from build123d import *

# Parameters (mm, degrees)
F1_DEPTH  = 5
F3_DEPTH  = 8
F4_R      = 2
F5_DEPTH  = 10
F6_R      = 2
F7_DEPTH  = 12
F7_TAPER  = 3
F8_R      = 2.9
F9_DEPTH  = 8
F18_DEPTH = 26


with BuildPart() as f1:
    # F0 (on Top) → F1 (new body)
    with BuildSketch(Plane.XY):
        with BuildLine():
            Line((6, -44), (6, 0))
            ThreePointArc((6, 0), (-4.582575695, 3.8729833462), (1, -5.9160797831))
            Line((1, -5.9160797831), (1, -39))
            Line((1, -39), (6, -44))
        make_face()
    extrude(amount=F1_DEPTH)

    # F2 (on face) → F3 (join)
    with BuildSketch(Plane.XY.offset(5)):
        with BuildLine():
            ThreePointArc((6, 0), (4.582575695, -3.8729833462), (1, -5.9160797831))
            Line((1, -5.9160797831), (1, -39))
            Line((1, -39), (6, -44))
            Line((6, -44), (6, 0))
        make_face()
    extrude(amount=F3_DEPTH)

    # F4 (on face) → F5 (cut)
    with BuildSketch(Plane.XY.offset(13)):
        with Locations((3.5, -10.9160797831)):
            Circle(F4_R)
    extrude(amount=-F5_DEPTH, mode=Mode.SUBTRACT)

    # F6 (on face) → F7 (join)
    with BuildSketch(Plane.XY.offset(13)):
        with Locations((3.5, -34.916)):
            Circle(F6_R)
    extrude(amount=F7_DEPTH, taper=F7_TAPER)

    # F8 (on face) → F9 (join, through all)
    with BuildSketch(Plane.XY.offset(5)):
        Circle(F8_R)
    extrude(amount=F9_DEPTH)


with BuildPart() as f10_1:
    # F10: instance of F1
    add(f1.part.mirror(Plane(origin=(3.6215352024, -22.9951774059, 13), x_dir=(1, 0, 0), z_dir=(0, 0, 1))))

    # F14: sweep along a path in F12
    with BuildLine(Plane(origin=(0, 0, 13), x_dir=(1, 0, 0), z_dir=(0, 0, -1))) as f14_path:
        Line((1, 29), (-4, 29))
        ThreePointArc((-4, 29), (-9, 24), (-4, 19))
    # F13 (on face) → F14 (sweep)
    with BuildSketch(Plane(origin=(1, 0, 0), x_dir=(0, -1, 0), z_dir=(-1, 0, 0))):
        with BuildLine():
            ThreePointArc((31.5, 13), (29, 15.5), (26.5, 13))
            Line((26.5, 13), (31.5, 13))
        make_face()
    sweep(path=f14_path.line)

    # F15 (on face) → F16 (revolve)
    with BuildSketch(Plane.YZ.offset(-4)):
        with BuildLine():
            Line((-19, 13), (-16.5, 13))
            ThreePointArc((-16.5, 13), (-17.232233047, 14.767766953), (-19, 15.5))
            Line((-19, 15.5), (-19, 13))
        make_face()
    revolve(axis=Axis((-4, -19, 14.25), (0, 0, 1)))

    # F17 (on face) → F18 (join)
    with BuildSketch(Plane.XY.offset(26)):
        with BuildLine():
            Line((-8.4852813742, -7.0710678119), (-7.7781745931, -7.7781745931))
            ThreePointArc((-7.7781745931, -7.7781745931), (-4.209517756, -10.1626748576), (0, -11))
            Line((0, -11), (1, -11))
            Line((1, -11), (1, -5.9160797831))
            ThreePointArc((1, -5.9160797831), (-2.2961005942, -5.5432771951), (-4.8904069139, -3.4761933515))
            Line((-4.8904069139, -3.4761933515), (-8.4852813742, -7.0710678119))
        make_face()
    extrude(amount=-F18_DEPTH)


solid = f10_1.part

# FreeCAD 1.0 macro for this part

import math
import FreeCAD as App
import Part
import Sketcher
from FreeCAD import Vector
Q = App.Units.Quantity

doc = App.newDocument("Part")
body = doc.addObject("PartDesign::Body", "Body")

# Sketch on XY plane
sketch1 = body.newObject("Sketcher::SketchObject", "Sketch")
sketch1.AttachmentSupport = (doc.getObject("XY_Plane"), [""])
sketch1.MapMode = "FlatFace"
sketch1.addGeometry(Part.LineSegment(Vector(6, -44, 0), Vector(6, 0, 0)), False)
sketch1.addGeometry(Part.ArcOfCircle(Part.Circle(Vector(0, 0, 0), Vector(0, 0, 1), 6), math.radians(0), math.radians(280)), False)
sketch1.addGeometry(Part.LineSegment(Vector(1, -6, 0), Vector(1, -39, 0)), False)
sketch1.addGeometry(Part.LineSegment(Vector(1, -39, 0), Vector(6, -44, 0)), False)
sketch1.addConstraint(Sketcher.Constraint("Tangent", 0, 2, 1, 1))
sketch1.addConstraint(Sketcher.Constraint("Coincident", 1, 2, 2, 1))
sketch1.addConstraint(Sketcher.Constraint("Coincident", 2, 2, 3, 1))
sketch1.addConstraint(Sketcher.Constraint("Coincident", 3, 2, 0, 1))
sketch1.addConstraint(Sketcher.Constraint("Vertical", 0))
sketch1.addConstraint(Sketcher.Constraint("Vertical", 2))
sketch1.addConstraint(Sketcher.Constraint("Coincident", 1, 3, -1, 1))
sketch1.addConstraint(Sketcher.Constraint("Radius", 1, 6.0))
sketch1.addConstraint(Sketcher.Constraint("DistanceY", 0, 1, 0, 2, 44.0))
sketch1.addConstraint(Sketcher.Constraint("Angle", 3, Q("-45 deg")))
sketch1.addConstraint(Sketcher.Constraint("DistanceX", -1, 1, 1, 2, 1.0))
pad1 = body.newObject("PartDesign::Pad", "Pad")
pad1.Profile = sketch1
pad1.Length = 5

# Sketch on XY plane
sketch2 = body.newObject("Sketcher::SketchObject", "Sketch001")
sketch2.AttachmentSupport = (doc.getObject("XY_Plane"), [""])
sketch2.MapMode = "FlatFace"
sketch2.AttachmentOffset = App.Placement(Vector(0, 0, 5), App.Rotation())
sketch2.addGeometry(Part.ArcOfCircle(Part.Circle(Vector(0, 0, 0), Vector(0, 0, 1), 6), math.radians(-80), math.radians(0)), False)
sketch2.addGeometry(Part.LineSegment(Vector(1, -6, 0), Vector(1, -39, 0)), False)
sketch2.addGeometry(Part.LineSegment(Vector(1, -39, 0), Vector(6, -44, 0)), False)
sketch2.addGeometry(Part.LineSegment(Vector(6, -44, 0), Vector(6, 0, 0)), False)
sketch2.addConstraint(Sketcher.Constraint("Coincident", 0, 1, 1, 1))
sketch2.addConstraint(Sketcher.Constraint("Coincident", 1, 2, 2, 1))
sketch2.addConstraint(Sketcher.Constraint("Coincident", 2, 2, 3, 1))
sketch2.addConstraint(Sketcher.Constraint("Tangent", 3, 2, 0, 2))
sketch2.addConstraint(Sketcher.Constraint("Vertical", 1))
sketch2.addConstraint(Sketcher.Constraint("Vertical", 3))
sketch2.addConstraint(Sketcher.Constraint("Coincident", 0, 3, -1, 1))
sketch2.addConstraint(Sketcher.Constraint("Radius", 0, 6.0))
sketch2.addConstraint(Sketcher.Constraint("DistanceY", 3, 1, 3, 2, 44.0))
sketch2.addConstraint(Sketcher.Constraint("Angle", 2, Q("-45 deg")))
sketch2.addConstraint(Sketcher.Constraint("DistanceX", -1, 1, 0, 1, 1.0))
pad2 = body.newObject("PartDesign::Pad", "Pad001")
pad2.Profile = sketch2
pad2.Length = 8

# Sketch on XY plane
sketch3 = body.newObject("Sketcher::SketchObject", "Sketch002")
sketch3.AttachmentSupport = (doc.getObject("XY_Plane"), [""])
sketch3.MapMode = "FlatFace"
sketch3.AttachmentOffset = App.Placement(Vector(0, 0, 13), App.Rotation())
sketch3.addGeometry(Part.Circle(Vector(3.5, -10.9, 0), Vector(0, 0, 1), 2), False)
sketch3.addConstraint(Sketcher.Constraint("Diameter", 0, 4.0))
sketch3.addConstraint(Sketcher.Constraint("DistanceX", -1, 1, 0, 3, 3.5))
sketch3.addConstraint(Sketcher.Constraint("DistanceY", 0, 3, -1, 1, 10.91608))
pocket1 = body.newObject("PartDesign::Pocket", "Pocket")
pocket1.Profile = sketch3
pocket1.Length = 10

# Sketch on XY plane
sketch4 = body.newObject("Sketcher::SketchObject", "Sketch003")
sketch4.AttachmentSupport = (doc.getObject("XY_Plane"), [""])
sketch4.MapMode = "FlatFace"
sketch4.AttachmentOffset = App.Placement(Vector(0, 0, 13), App.Rotation())
sketch4.addGeometry(Part.Circle(Vector(3.5, -34.9, 0), Vector(0, 0, 1), 2), False)
sketch4.addConstraint(Sketcher.Constraint("Diameter", 0, 4.0))
sketch4.addConstraint(Sketcher.Constraint("DistanceX", -1, 1, 0, 3, 3.5))
sketch4.addConstraint(Sketcher.Constraint("DistanceY", 0, 3, -1, 1, 34.916))
pad3 = body.newObject("PartDesign::Pad", "Pad002")
pad3.Profile = sketch4
pad3.Length = 12
pad3.TaperAngle = -3

# Sketch on XY plane
sketch5 = body.newObject("Sketcher::SketchObject", "Sketch004")
sketch5.AttachmentSupport = (doc.getObject("XY_Plane"), [""])
sketch5.MapMode = "FlatFace"
sketch5.AttachmentOffset = App.Placement(Vector(0, 0, 5), App.Rotation())
sketch5.addGeometry(Part.Circle(Vector(0, 0, 0), Vector(0, 0, 1), 2.9), False)
sketch5.addConstraint(Sketcher.Constraint("Coincident", 0, 3, -1, 1))
sketch5.addConstraint(Sketcher.Constraint("Diameter", 0, 5.8))
pad4 = body.newObject("PartDesign::Pad", "Pad003")
pad4.Profile = sketch5
pad4.Length = 8
body2 = doc.addObject("PartDesign::Body", "Body001")
doc.recompute()

mirroring = doc.addObject("Part::Mirroring", "Mirroring")
mirroring.Source = body
mirroring.Base = Vector(3.621535, -22.995177, 13)
mirroring.Normal = Vector(0, 0, 1)
body2.BaseFeature = mirroring
doc.recompute()

# Sketch on YZ plane
sketch6 = body2.newObject("Sketcher::SketchObject", "Sketch005")
sketch6.AttachmentSupport = (doc.getObject("YZ_Plane001"), [""])
sketch6.MapMode = "FlatFace"
sketch6.AttachmentOffset = App.Placement(Vector(0, 0, 1), App.Rotation())
sketch6.addGeometry(Part.ArcOfCircle(Part.Circle(Vector(-29, 13, 0), Vector(0, 0, 1), 2.5), math.radians(0), math.radians(180)), False)
sketch6.addGeometry(Part.LineSegment(Vector(-26.5, 13, 0), Vector(-31.5, 13, 0)), False)
sketch6.addConstraint(Sketcher.Constraint("Coincident", 0, 1, 1, 1))
sketch6.addConstraint(Sketcher.Constraint("Coincident", 1, 2, 0, 2))
sketch6.addConstraint(Sketcher.Constraint("Horizontal", 1))
sketch6.addConstraint(Sketcher.Constraint("Radius", 0, 2.5))
sketch6.addConstraint(Sketcher.Constraint("DistanceX", 0, 3, -1, 1, 29.0))
sketch6.addConstraint(Sketcher.Constraint("DistanceY", -1, 1, 0, 3, 13.0))
sketch6.addConstraint(Sketcher.Constraint("DistanceY", -1, 1, 0, 1, 13.0))

# Sketch on XY plane
sketch7 = body2.newObject("Sketcher::SketchObject", "Sketch006")
sketch7.AttachmentSupport = (doc.getObject("XY_Plane001"), [""])
sketch7.MapMode = "FlatFace"
sketch7.AttachmentOffset = App.Placement(Vector(0, 0, 13), App.Rotation())
sketch7.addGeometry(Part.LineSegment(Vector(1, -29, 0), Vector(-4, -29, 0)), False)
sketch7.addGeometry(Part.ArcOfCircle(Part.Circle(Vector(-4, -24, 0), Vector(0, 0, 1), 5), math.radians(90), math.radians(270)), False)
sketch7.addConstraint(Sketcher.Constraint("Tangent", 0, 2, 1, 2))
sketch7.addConstraint(Sketcher.Constraint("Horizontal", 0))
sketch7.addConstraint(Sketcher.Constraint("Vertical", 0, 2, 1, 1))
sketch7.addConstraint(Sketcher.Constraint("Radius", 1, 5.0))
sketch7.addConstraint(Sketcher.Constraint("DistanceX", 0, 2, 0, 1, 5.0))
sketch7.addConstraint(Sketcher.Constraint("DistanceX", 1, 3, -1, 1, 4.0))
sketch7.addConstraint(Sketcher.Constraint("DistanceY", 1, 3, -1, 1, 24.0))
doc.recompute()

additivepipe = body2.newObject("PartDesign::AdditivePipe", "AdditivePipe")
additivepipe.Profile = sketch6
additivepipe.Spine = (sketch7, ["Edge1", "Edge2"])

# Sketch on YZ plane
sketch8 = body2.newObject("Sketcher::SketchObject", "Sketch007")
sketch8.AttachmentSupport = (doc.getObject("YZ_Plane001"), [""])
sketch8.MapMode = "FlatFace"
sketch8.AttachmentOffset = App.Placement(Vector(0, 0, -4), App.Rotation())
sketch8.addGeometry(Part.LineSegment(Vector(-19, 13, 0), Vector(-16.5, 13, 0)), False)
sketch8.addGeometry(Part.ArcOfCircle(Part.Circle(Vector(-19, 13, 0), Vector(0, 0, 1), 2.5), math.radians(0), math.radians(90)), False)
sketch8.addGeometry(Part.LineSegment(Vector(-19, 15.5, 0), Vector(-19, 13, 0)), False)
sketch8.addGeometry(Part.LineSegment(Vector(-19, 13, 0), Vector(-19, 15.5, 0)), True)  # axis
sketch8.addConstraint(Sketcher.Constraint("Coincident", 0, 2, 1, 1))
sketch8.addConstraint(Sketcher.Constraint("Coincident", 1, 2, 2, 1))
sketch8.addConstraint(Sketcher.Constraint("Coincident", 2, 2, 0, 1))
sketch8.addConstraint(Sketcher.Constraint("Horizontal", 0))
sketch8.addConstraint(Sketcher.Constraint("Vertical", 2))
sketch8.addConstraint(Sketcher.Constraint("Vertical", 3))
sketch8.addConstraint(Sketcher.Constraint("Coincident", 2, 2, 1, 3))
sketch8.addConstraint(Sketcher.Constraint("Coincident", 3, 1, 1, 3))
sketch8.addConstraint(Sketcher.Constraint("Equal", 2, 3))
sketch8.addConstraint(Sketcher.Constraint("Radius", 1, 2.5))
sketch8.addConstraint(Sketcher.Constraint("DistanceX", 1, 3, -1, 1, 19.0))
sketch8.addConstraint(Sketcher.Constraint("DistanceY", -1, 1, 1, 3, 13.0))
revolution = body2.newObject("PartDesign::Revolution", "Revolution")
revolution.Profile = sketch8
revolution.ReferenceAxis = (sketch8, ["Axis0"])
revolution.Angle = 360

# Sketch on XY plane
sketch9 = body2.newObject("Sketcher::SketchObject", "Sketch008")
sketch9.AttachmentSupport = (doc.getObject("XY_Plane001"), [""])
sketch9.MapMode = "FlatFace"
sketch9.AttachmentOffset = App.Placement(Vector(0, 0, 26), App.Rotation())
sketch9.addGeometry(Part.LineSegment(Vector(-8.5, -7.1, 0), Vector(-7.8, -7.8, 0)), False)
sketch9.addGeometry(Part.ArcOfCircle(Part.Circle(Vector(0, 0, 0), Vector(0, 0, 1), 11), math.radians(-135), math.radians(-90)), False)
sketch9.addGeometry(Part.LineSegment(Vector(0, -11, 0), Vector(1, -11, 0)), False)
sketch9.addGeometry(Part.LineSegment(Vector(1, -11, 0), Vector(1, -5.9, 0)), False)
sketch9.addGeometry(Part.ArcOfCircle(Part.Circle(Vector(0, 0, 0), Vector(0, 0, 1), 6), math.radians(-145), math.radians(-80)), False)
sketch9.addGeometry(Part.LineSegment(Vector(-4.9, -3.5, 0), Vector(-8.5, -7.1, 0)), False)
sketch9.addConstraint(Sketcher.Constraint("Tangent", 0, 2, 1, 1))
sketch9.addConstraint(Sketcher.Constraint("Tangent", 1, 2, 2, 1))
sketch9.addConstraint(Sketcher.Constraint("Coincident", 2, 2, 3, 1))
sketch9.addConstraint(Sketcher.Constraint("Coincident", 3, 2, 4, 2))
sketch9.addConstraint(Sketcher.Constraint("Coincident", 4, 1, 5, 1))
sketch9.addConstraint(Sketcher.Constraint("Coincident", 5, 2, 0, 1))
sketch9.addConstraint(Sketcher.Constraint("Horizontal", 2))
sketch9.addConstraint(Sketcher.Constraint("Vertical", 3))
sketch9.addConstraint(Sketcher.Constraint("Coincident", 1, 3, -1, 1))
sketch9.addConstraint(Sketcher.Constraint("Coincident", 4, 3, -1, 1))
sketch9.addConstraint(Sketcher.Constraint("Perpendicular", 0, 5))
sketch9.addConstraint(Sketcher.Constraint("Radius", 1, 11.0))
sketch9.addConstraint(Sketcher.Constraint("Radius", 4, 6.0))
sketch9.addConstraint(Sketcher.Constraint("DistanceX", 2, 1, 2, 2, 1.0))
sketch9.addConstraint(Sketcher.Constraint("Angle", 0, Q("-45 deg")))
sketch9.addConstraint(Sketcher.Constraint("Distance", 0, 1.0))
pad5 = body2.newObject("PartDesign::Pad", "Pad004")
pad5.Profile = sketch9
pad5.Length = 26
pad5.Reversed = True
body.Visibility = False
mirroring.Visibility = False

doc.recompute()
